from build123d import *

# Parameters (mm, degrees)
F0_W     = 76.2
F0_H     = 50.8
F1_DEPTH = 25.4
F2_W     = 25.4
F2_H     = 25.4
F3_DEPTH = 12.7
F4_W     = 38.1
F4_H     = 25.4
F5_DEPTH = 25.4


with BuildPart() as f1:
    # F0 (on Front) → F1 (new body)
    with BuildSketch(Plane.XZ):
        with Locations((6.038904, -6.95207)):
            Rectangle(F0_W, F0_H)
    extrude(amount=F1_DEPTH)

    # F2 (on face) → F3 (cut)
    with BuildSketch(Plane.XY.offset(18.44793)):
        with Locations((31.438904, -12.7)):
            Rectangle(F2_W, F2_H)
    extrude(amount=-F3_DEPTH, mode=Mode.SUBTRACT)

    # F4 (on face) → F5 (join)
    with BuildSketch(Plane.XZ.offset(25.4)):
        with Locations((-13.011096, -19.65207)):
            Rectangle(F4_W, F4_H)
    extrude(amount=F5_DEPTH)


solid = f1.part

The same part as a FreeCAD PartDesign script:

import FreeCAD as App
import Part
import Sketcher

V = App.Vector
Q = App.Units.Quantity


def add_polygon(sketch, points):
    """Adds a closed chain of lines whose ends are joined by coincident constraints."""
    first, n = sketch.GeometryCount, len(points)
    for a, b in zip(points, points[1:] + points[:1]):
        sketch.addGeometry(Part.LineSegment(App.Vector(*a, 0), App.Vector(*b, 0)), False)
    for i in range(n):
        sketch.addConstraint(Sketcher.Constraint("Coincident", first + i, 2, first + (i + 1) % n, 1))

doc = App.newDocument("Part")
body = doc.addObject("PartDesign::Body", "Body")

# Sketch on XZ plane
sketch1 = body.newObject("Sketcher::SketchObject", "Sketch")
sketch1.AttachmentSupport = (doc.getObject("XZ_Plane"), [""])
sketch1.MapMode = "FlatFace"
add_polygon(sketch1, [(-32, 18), (-32, -32), (44, -32), (44, 18)])  # lines 0-3
sketch1.addConstraint([
    Sketcher.Constraint("Vertical", 0),
    Sketcher.Constraint("Horizontal", 1),
    Sketcher.Constraint("Vertical", 2),
    Sketcher.Constraint("Horizontal", 3),
    Sketcher.Constraint("DistanceX", 1, 1, 1, 2, Q("3 in")),
    Sketcher.Constraint("DistanceY", 0, 2, 0, 1, Q("2 in")),
    Sketcher.Constraint("DistanceY", 0, 2, -1, 1, 32.35207),
    Sketcher.Constraint("DistanceX", 0, 2, -1, 1, 32.061096),
])
pad1 = body.newObject("PartDesign::Pad", "Pad")
pad1.Profile = sketch1
pad1.Length = Q("1 in")

# Sketch on XY plane
sketch2 = body.newObject("Sketcher::SketchObject", "Sketch001")
sketch2.AttachmentSupport = (doc.getObject("XY_Plane"), [""])
sketch2.MapMode = "FlatFace"
sketch2.AttachmentOffset = App.Placement(V(0, 0, 18.44793), App.Rotation())
add_polygon(sketch2, [(19, 0), (19, -25), (44, -25), (44, 0)])  # lines 0-3
sketch2.addConstraint([
    Sketcher.Constraint("Vertical", 0),
    Sketcher.Constraint("Horizontal", 1),
    Sketcher.Constraint("Vertical", 2),
    Sketcher.Constraint("Horizontal", 3),
    Sketcher.Constraint("PointOnObject", 2, 2, -1),
    Sketcher.Constraint("Equal", 3, 0),
    Sketcher.Constraint("DistanceX", 1, 1, 1, 2, Q("1 in")),
    Sketcher.Constraint("DistanceX", -1, 1, 0, 2, 18.738904),
])
pocket1 = body.newObject("PartDesign::Pocket", "Pocket")
pocket1.Profile = sketch2
pocket1.Length = Q("0.5 in")

# Sketch on XZ plane
sketch3 = body.newObject("Sketcher::SketchObject", "Sketch002")
sketch3.AttachmentSupport = (doc.getObject("XZ_Plane"), [""])
sketch3.MapMode = "FlatFace"
sketch3.AttachmentOffset = App.Placement(V(0, 0, 1 * 25.4), App.Rotation())
add_polygon(sketch3, [(-32, -7), (-32, -32), (6, -32), (6, -7)])  # lines 0-3
sketch3.addConstraint([
    Sketcher.Constraint("Vertical", 0),
    Sketcher.Constraint("Horizontal", 1),
    Sketcher.Constraint("Vertical", 2),
    Sketcher.Constraint("Horizontal", 3),
    Sketcher.Constraint("DistanceY", 0, 2, 0, 1, Q("1 in")),
    Sketcher.Constraint("DistanceX", 1, 1, 1, 2, Q("1.5 in")),
    Sketcher.Constraint("DistanceY", 0, 2, -1, 1, 32.35207),
    Sketcher.Constraint("DistanceX", 0, 2, -1, 1, 32.061096),
])
pad2 = body.newObject("PartDesign::Pad", "Pad001")
pad2.Profile = sketch3
pad2.Length = Q("1 in")

doc.recompute()
